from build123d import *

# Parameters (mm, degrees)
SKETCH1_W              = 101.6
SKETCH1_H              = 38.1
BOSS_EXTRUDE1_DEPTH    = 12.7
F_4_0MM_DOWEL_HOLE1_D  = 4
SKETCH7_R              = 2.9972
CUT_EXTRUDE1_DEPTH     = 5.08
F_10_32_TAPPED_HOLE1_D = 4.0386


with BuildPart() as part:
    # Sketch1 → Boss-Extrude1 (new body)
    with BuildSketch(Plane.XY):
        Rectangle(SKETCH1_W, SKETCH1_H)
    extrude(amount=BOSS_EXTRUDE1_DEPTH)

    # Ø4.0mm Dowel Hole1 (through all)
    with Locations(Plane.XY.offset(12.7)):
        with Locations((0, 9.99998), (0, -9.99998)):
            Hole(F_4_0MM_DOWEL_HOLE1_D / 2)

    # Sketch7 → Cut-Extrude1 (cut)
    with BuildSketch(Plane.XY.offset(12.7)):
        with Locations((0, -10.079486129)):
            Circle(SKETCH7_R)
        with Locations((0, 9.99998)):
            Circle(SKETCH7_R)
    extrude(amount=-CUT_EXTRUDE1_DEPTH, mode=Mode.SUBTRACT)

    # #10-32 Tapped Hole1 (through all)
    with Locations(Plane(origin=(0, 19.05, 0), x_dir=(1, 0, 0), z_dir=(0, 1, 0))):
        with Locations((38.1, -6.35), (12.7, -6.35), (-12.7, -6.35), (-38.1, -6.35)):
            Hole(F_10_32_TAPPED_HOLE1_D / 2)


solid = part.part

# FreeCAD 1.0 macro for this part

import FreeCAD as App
import Part
import Sketcher
from FreeCAD import Vector
Q = App.Units.Quantity


def add_polygon(sketch, points):
    """Adds a closed chain of lines whose ends are joined by coincident constraints."""
    first, n = sketch.GeometryCount, len(points)
    for a, b in zip(points, points[1:] + points[:1]):
        sketch.addGeometry(Part.LineSegment(App.Vector(*a, 0), App.Vector(*b, 0)), False)
    for i in range(n):
        sketch.addConstraint(Sketcher.Constraint("Coincident", first + i, 2, first + (i + 1) % n, 1))

doc = App.newDocument("Part")
params = doc.addObject("Spreadsheet::Sheet", "Params")
for row, (alias, value) in enumerate([
    ("sketch1_width", "4 in"),
    ("sketch1_height", "1.5 in"),
    ("pad1_length", "0.5 in"),
    ("hole_diameter", "4 mm"),
    ("sketch3_diameter", "0.236 in"),
    ("pocket1_length", "0.2 in"),
    ("sketch4_diameter", "0.159 in"),
    ("hole2_diameter", "0.159 in"),
], start=1):
    params.set(f"A{row}", alias)
    params.set(f"B{row}", "=" + value)
    params.setAlias(f"B{row}", alias)

body = doc.addObject("PartDesign::Body", "Body")

# Sketch on XY plane
sketch1 = body.newObject("Sketcher::SketchObject", "Sketch")
sketch1.AttachmentSupport = (doc.getObject("XY_Plane"), [""])
sketch1.MapMode = "FlatFace"
add_polygon(sketch1, [(-51, 19), (-51, -19), (51, -19), (51, 19)])  # lines 0-3
sketch1.addConstraint([
    Sketcher.Constraint("Vertical", 0),
    Sketcher.Constraint("Horizontal", 1),
    Sketcher.Constraint("Vertical", 2),
    Sketcher.Constraint("Horizontal", 3),
    Sketcher.Constraint("Symmetric", 0, 2, 2, 2, -1, 1),
    Sketcher.Constraint("DistanceX", 1, 1, 1, 2, Q("4 in")),
    Sketcher.Constraint("DistanceY", 0, 2, 0, 1, Q("1.5 in")),
])
sketch1.setExpression("Constraints[9]", "Params.sketch1_width")
sketch1.setExpression("Constraints[10]", "Params.sketch1_height")
pad1 = body.newObject("PartDesign::Pad", "Pad")
pad1.Profile = sketch1
pad1.setExpression("Length", "Params.pad1_length")

# Sketch on XY plane
sketch2 = body.newObject("Sketcher::SketchObject", "Sketch001")
sketch2.AttachmentSupport = (doc.getObject("XY_Plane"), [""])
sketch2.MapMode = "FlatFace"
sketch2.AttachmentOffset = App.Placement(Vector(0, 0, 0.5 * 25.4), App.Rotation())
sketch2.addGeometry([
    Part.Circle(Vector(0, 10, 0), Vector(0, 0, 1), 2),
    Part.Circle(Vector(0, -10, 0), Vector(0, 0, 1), 2),
], False)
sketch2.addConstraint([
    Sketcher.Constraint("Equal", 0, 1),
    Sketcher.Constraint("Symmetric", 0, 3, 1, 3, -1, 1),
    Sketcher.Constraint("PointOnObject", 0, 3, -2),
    Sketcher.Constraint("Diameter", 0, 4.0),
    Sketcher.Constraint("DistanceY", -1, 1, 0, 3, Q("0.3937 in")),
])
doc.recompute()
hole = body.newObject("PartDesign::Hole", "Hole")
hole.Profile = sketch2
hole.ThreadType = "None"
hole.setExpression("Diameter", "Params.hole_diameter")
hole.DepthType = "ThroughAll"

# Sketch on XY plane
sketch3 = body.newObject("Sketcher::SketchObject", "Sketch002")
sketch3.AttachmentSupport = (doc.getObject("XY_Plane"), [""])
sketch3.MapMode = "FlatFace"
sketch3.AttachmentOffset = App.Placement(Vector(0, 0, 0.5 * 25.4), App.Rotation())
sketch3.addGeometry([
    Part.Circle(Vector(0, -10.1, 0), Vector(0, 0, 1), 3),
    Part.Circle(Vector(0, 10, 0), Vector(0, 0, 1), 3),
], False)
sketch3.addConstraint([
    Sketcher.Constraint("Equal", 0, 1),
    Sketcher.Constraint("PointOnObject", 0, 3, -2),
    Sketcher.Constraint("PointOnObject", 1, 3, -2),
    Sketcher.Constraint("Diameter", 0, Q("0.236 in")),
    Sketcher.Constraint("DistanceY", -1, 1, 1, 3, Q("0.3937 in")),
    Sketcher.Constraint("DistanceY", 0, 3, -1, 1, 10.079486),
])
sketch3.setExpression("Constraints[3]", "Params.sketch3_diameter")
pocket1 = body.newObject("PartDesign::Pocket", "Pocket")
pocket1.Profile = sketch3
pocket1.setExpression("Length", "Params.pocket1_length")

# Sketch on XZ plane
sketch4 = body.newObject("Sketcher::SketchObject", "Sketch003")
sketch4.AttachmentSupport = (doc.getObject("XZ_Plane"), [""])
sketch4.MapMode = "FlatFace"
sketch4.AttachmentOffset = App.Placement(Vector(0, 0, -0.75 * 25.4), App.Rotation())
sketch4.addGeometry([
    Part.Circle(Vector(38.1, 6.3, 0), Vector(0, 0, 1), 2),
    Part.Circle(Vector(12.7, 6.3, 0), Vector(0, 0, 1), 2),
    Part.Circle(Vector(-12.7, 6.3, 0), Vector(0, 0, 1), 2),
    Part.Circle(Vector(-38.1, 6.3, 0), Vector(0, 0, 1), 2),
], False)
sketch4.addConstraint([
    Sketcher.Constraint("Equal", 0, 1),
    Sketcher.Constraint("Equal", 1, 2),
    Sketcher.Constraint("Equal", 2, 3),
    Sketcher.Constraint("Symmetric", 1, 3, 2, 3, -2),
    Sketcher.Constraint("Symmetric", 0, 3, 3, 3, -2),
    Sketcher.Constraint("Horizontal", 0, 3, 1, 3),
    Sketcher.Constraint("Diameter", 0, Q("0.159 in")),
    Sketcher.Constraint("DistanceX", 1, 3, 0, 3, Q("1 in")),
    Sketcher.Constraint("DistanceX", 2, 3, 1, 3, Q("1 in")),
    Sketcher.Constraint("DistanceY", -1, 1, 0, 3, Q("0.25 in")),
])
sketch4.setExpression("Constraints[6]", "Params.sketch4_diameter")
doc.recompute()
hole2 = body.newObject("PartDesign::Hole", "Hole001")
hole2.Profile = sketch4
hole2.ThreadType = "None"
hole2.setExpression("Diameter", "Params.hole2_diameter")
hole2.DepthType = "ThroughAll"
hole2.Reversed = True

doc.recompute()
